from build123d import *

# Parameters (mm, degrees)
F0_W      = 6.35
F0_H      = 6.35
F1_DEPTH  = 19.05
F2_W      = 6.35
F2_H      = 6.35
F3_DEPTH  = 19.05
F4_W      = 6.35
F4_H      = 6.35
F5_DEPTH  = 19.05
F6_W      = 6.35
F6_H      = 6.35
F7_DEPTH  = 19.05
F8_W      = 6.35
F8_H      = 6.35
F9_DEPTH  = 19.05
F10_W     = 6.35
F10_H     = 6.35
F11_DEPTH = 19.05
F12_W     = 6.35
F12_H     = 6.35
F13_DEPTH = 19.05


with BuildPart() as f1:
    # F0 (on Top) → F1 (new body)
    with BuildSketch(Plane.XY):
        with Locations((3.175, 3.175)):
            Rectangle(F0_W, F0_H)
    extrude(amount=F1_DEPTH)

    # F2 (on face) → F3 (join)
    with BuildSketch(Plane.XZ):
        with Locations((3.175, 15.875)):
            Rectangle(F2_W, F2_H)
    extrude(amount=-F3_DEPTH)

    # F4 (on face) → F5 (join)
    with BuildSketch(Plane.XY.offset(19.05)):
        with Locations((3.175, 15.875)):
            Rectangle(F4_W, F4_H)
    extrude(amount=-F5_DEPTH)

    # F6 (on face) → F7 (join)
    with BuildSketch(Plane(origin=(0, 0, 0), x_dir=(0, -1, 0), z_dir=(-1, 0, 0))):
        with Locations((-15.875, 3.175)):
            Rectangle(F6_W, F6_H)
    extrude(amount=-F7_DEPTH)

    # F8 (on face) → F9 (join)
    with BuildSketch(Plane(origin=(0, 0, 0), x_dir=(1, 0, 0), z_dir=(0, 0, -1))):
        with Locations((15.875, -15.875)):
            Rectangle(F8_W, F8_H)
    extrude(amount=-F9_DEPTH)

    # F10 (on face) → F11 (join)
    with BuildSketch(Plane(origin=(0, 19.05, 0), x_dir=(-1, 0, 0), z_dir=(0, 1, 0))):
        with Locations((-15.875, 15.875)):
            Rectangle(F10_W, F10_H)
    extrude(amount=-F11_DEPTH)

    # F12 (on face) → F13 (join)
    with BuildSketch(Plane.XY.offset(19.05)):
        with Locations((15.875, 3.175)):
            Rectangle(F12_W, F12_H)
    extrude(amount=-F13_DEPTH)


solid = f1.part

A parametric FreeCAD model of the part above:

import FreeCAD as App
import Part
import Sketcher
Q = App.Units.Quantity


def add_polygon(sketch, points):
    """Adds a closed chain of lines whose ends are joined by coincident constraints."""
    first, n = sketch.GeometryCount, len(points)
    for a, b in zip(points, points[1:] + points[:1]):
        sketch.addGeometry(Part.LineSegment(App.Vector(*a, 0), App.Vector(*b, 0)), False)
    for i in range(n):
        sketch.addConstraint(Sketcher.Constraint("Coincident", first + i, 2, first + (i + 1) % n, 1))

doc = App.newDocument("Part")
body = doc.addObject("PartDesign::Body", "Body")

# Sketch on XY plane
sketch1 = doc.addObject("Sketcher::SketchObject", "Sketch")
body.addObject(sketch1)
sketch1.AttachmentSupport = (doc.XY_Plane, [""])
sketch1.MapMode = "FlatFace"
add_polygon(sketch1, [(0, 6.35), (0, 0), (6.35, 0), (6.35, 6.35)])  # lines 0-3
sketch1.addConstraint([
    Sketcher.Constraint("Vertical", 0),
    Sketcher.Constraint("Horizontal", 1),
    Sketcher.Constraint("Vertical", 2),
    Sketcher.Constraint("Horizontal", 3),
    Sketcher.Constraint("Coincident", 0, 2, -1, 1),
    Sketcher.Constraint("Equal", 3, 0),
    Sketcher.Constraint("DistanceX", 1, 1, 1, 2, Q("0.25 in")),
])
pad1 = doc.addObject("PartDesign::Pad", "Pad")
body.addObject(pad1)
pad1.Profile = sketch1
pad1.Length = Q("0.75 in")

# Sketch on XZ plane
sketch2 = doc.addObject("Sketcher::SketchObject", "Sketch001")
body.addObject(sketch2)
sketch2.AttachmentSupport = (doc.XZ_Plane, [""])
sketch2.MapMode = "FlatFace"
add_polygon(sketch2, [(0, 19.05), (0, 12.7), (6.35, 12.7), (6.35, 19.05)])  # lines 0-3
sketch2.addConstraint([
    Sketcher.Constraint("Vertical", 0),
    Sketcher.Constraint("Horizontal", 1),
    Sketcher.Constraint("Vertical", 2),
    Sketcher.Constraint("Horizontal", 3),
    Sketcher.Constraint("PointOnObject", 0, 2, -2),
    Sketcher.Constraint("Equal", 3, 0),
    Sketcher.Constraint("DistanceX", 1, 1, 1, 2, Q("0.25 in")),
    Sketcher.Constraint("DistanceY", -1, 1, 0, 2, Q("0.5 in")),
])
pad2 = doc.addObject("PartDesign::Pad", "Pad001")
body.addObject(pad2)
pad2.Profile = sketch2
pad2.Length = Q("0.75 in")
pad2.Reversed = True

# Sketch on XY plane
sketch3 = doc.addObject("Sketcher::SketchObject", "Sketch002")
body.addObject(sketch3)
sketch3.AttachmentSupport = (doc.XY_Plane, [""])
sketch3.MapMode = "FlatFace"
sketch3.AttachmentOffset = App.Placement(App.Vector(0, 0, 0.75 * 25.4), App.Rotation())
add_polygon(sketch3, [(0, 19.05), (0, 12.7), (6.35, 12.7), (6.35, 19.05)])  # lines 0-3
sketch3.addConstraint([
    Sketcher.Constraint("Vertical", 0),
    Sketcher.Constraint("Horizontal", 1),
    Sketcher.Constraint("Vertical", 2),
    Sketcher.Constraint("Horizontal", 3),
    Sketcher.Constraint("PointOnObject", 0, 2, -2),
    Sketcher.Constraint("Equal", 3, 0),
    Sketcher.Constraint("DistanceX", 1, 1, 1, 2, Q("0.25 in")),
    Sketcher.Constraint("DistanceY", -1, 1, 0, 2, Q("0.5 in")),
])
pad3 = doc.addObject("PartDesign::Pad", "Pad002")
body.addObject(pad3)
pad3.Profile = sketch3
pad3.Length = Q("0.75 in")
pad3.Reversed = True

# Sketch on YZ plane
sketch4 = doc.addObject("Sketcher::SketchObject", "Sketch003")
body.addObject(sketch4)
sketch4.AttachmentSupport = (doc.YZ_Plane, [""])
sketch4.MapMode = "FlatFace"
add_polygon(sketch4, [(19.05, 6.35), (19.05, 0), (12.7, 0), (12.7, 6.35)])  # lines 0-3
sketch4.addConstraint([
    Sketcher.Constraint("Vertical", 0),
    Sketcher.Constraint("Horizontal", 1),
    Sketcher.Constraint("Vertical", 2),
    Sketcher.Constraint("Horizontal", 3),
    Sketcher.Constraint("PointOnObject", 0, 2, -1),
    Sketcher.Constraint("Equal", 3, 0),
    Sketcher.Constraint("DistanceX", 1, 2, 1, 1, Q("0.25 in")),
    Sketcher.Constraint("DistanceX", -1, 1, 1, 2, Q("0.5 in")),
])
pad4 = doc.addObject("PartDesign::Pad", "Pad003")
body.addObject(pad4)
pad4.Profile = sketch4
pad4.Length = Q("0.75 in")

# Sketch on XY plane
sketch5 = doc.addObject("Sketcher::SketchObject", "Sketch004")
body.addObject(sketch5)
sketch5.AttachmentSupport = (doc.XY_Plane, [""])
sketch5.MapMode = "FlatFace"
add_polygon(sketch5, [(12.7, 12.7), (12.7, 19.05), (19.05, 19.05), (19.05, 12.7)])  # lines 0-3
sketch5.addConstraint([
    Sketcher.Constraint("Vertical", 0),
    Sketcher.Constraint("Horizontal", 1),
    Sketcher.Constraint("Vertical", 2),
    Sketcher.Constraint("Horizontal", 3),
    Sketcher.Constraint("Equal", 3, 0),
    Sketcher.Constraint("DistanceX", 1, 1, 1, 2, Q("0.25 in")),
    Sketcher.Constraint("DistanceX", -1, 1, 0, 2, Q("0.5 in")),
    Sketcher.Constraint("DistanceY", -1, 1, 2, 2, Q("0.5 in")),
])
pad5 = doc.addObject("PartDesign::Pad", "Pad004")
body.addObject(pad5)
pad5.Profile = sketch5
pad5.Length = Q("0.75 in")

# Sketch on XZ plane
sketch6 = doc.addObject("Sketcher::SketchObject", "Sketch005")
body.addObject(sketch6)
sketch6.AttachmentSupport = (doc.XZ_Plane, [""])
sketch6.MapMode = "FlatFace"
sketch6.AttachmentOffset = App.Placement(App.Vector(0, 0, -0.75 * 25.4), App.Rotation())
add_polygon(sketch6, [(19.05, 19.05), (19.05, 12.7), (12.7, 12.7), (12.7, 19.05)])  # lines 0-3
sketch6.addConstraint([
    Sketcher.Constraint("Vertical", 0),
    Sketcher.Constraint("Horizontal", 1),
    Sketcher.Constraint("Vertical", 2),
    Sketcher.Constraint("Horizontal", 3),
    Sketcher.Constraint("Equal", 3, 0),
    Sketcher.Constraint("DistanceX", 1, 2, 1, 1, Q("0.25 in")),
    Sketcher.Constraint("DistanceY", -1, 1, 0, 2, Q("0.5 in")),
    Sketcher.Constraint("DistanceX", -1, 1, 1, 2, Q("0.5 in")),
])
pad6 = doc.addObject("PartDesign::Pad", "Pad005")
body.addObject(pad6)
pad6.Profile = sketch6
pad6.Length = Q("0.75 in")

# Sketch on XY plane
sketch7 = doc.addObject("Sketcher::SketchObject", "Sketch006")
body.addObject(sketch7)
sketch7.AttachmentSupport = (doc.XY_Plane, [""])
sketch7.MapMode = "FlatFace"
sketch7.AttachmentOffset = App.Placement(App.Vector(0, 0, 0.75 * 25.4), App.Rotation())
add_polygon(sketch7, [(12.7, 6.35), (12.7, 0), (19.05, 0), (19.05, 6.35)])  # lines 0-3
sketch7.addConstraint([
    Sketcher.Constraint("Vertical", 0),
    Sketcher.Constraint("Horizontal", 1),
    Sketcher.Constraint("Vertical", 2),
    Sketcher.Constraint("Horizontal", 3),
    Sketcher.Constraint("PointOnObject", 0, 2, -1),
    Sketcher.Constraint("Equal", 3, 0),
    Sketcher.Constraint("DistanceX", 1, 1, 1, 2, Q("0.25 in")),
    Sketcher.Constraint("DistanceX", -1, 1, 0, 2, Q("0.5 in")),
])
pad7 = doc.addObject("PartDesign::Pad", "Pad006")
body.addObject(pad7)
pad7.Profile = sketch7
pad7.Length = Q("0.75 in")
pad7.Reversed = True

doc.recompute()
